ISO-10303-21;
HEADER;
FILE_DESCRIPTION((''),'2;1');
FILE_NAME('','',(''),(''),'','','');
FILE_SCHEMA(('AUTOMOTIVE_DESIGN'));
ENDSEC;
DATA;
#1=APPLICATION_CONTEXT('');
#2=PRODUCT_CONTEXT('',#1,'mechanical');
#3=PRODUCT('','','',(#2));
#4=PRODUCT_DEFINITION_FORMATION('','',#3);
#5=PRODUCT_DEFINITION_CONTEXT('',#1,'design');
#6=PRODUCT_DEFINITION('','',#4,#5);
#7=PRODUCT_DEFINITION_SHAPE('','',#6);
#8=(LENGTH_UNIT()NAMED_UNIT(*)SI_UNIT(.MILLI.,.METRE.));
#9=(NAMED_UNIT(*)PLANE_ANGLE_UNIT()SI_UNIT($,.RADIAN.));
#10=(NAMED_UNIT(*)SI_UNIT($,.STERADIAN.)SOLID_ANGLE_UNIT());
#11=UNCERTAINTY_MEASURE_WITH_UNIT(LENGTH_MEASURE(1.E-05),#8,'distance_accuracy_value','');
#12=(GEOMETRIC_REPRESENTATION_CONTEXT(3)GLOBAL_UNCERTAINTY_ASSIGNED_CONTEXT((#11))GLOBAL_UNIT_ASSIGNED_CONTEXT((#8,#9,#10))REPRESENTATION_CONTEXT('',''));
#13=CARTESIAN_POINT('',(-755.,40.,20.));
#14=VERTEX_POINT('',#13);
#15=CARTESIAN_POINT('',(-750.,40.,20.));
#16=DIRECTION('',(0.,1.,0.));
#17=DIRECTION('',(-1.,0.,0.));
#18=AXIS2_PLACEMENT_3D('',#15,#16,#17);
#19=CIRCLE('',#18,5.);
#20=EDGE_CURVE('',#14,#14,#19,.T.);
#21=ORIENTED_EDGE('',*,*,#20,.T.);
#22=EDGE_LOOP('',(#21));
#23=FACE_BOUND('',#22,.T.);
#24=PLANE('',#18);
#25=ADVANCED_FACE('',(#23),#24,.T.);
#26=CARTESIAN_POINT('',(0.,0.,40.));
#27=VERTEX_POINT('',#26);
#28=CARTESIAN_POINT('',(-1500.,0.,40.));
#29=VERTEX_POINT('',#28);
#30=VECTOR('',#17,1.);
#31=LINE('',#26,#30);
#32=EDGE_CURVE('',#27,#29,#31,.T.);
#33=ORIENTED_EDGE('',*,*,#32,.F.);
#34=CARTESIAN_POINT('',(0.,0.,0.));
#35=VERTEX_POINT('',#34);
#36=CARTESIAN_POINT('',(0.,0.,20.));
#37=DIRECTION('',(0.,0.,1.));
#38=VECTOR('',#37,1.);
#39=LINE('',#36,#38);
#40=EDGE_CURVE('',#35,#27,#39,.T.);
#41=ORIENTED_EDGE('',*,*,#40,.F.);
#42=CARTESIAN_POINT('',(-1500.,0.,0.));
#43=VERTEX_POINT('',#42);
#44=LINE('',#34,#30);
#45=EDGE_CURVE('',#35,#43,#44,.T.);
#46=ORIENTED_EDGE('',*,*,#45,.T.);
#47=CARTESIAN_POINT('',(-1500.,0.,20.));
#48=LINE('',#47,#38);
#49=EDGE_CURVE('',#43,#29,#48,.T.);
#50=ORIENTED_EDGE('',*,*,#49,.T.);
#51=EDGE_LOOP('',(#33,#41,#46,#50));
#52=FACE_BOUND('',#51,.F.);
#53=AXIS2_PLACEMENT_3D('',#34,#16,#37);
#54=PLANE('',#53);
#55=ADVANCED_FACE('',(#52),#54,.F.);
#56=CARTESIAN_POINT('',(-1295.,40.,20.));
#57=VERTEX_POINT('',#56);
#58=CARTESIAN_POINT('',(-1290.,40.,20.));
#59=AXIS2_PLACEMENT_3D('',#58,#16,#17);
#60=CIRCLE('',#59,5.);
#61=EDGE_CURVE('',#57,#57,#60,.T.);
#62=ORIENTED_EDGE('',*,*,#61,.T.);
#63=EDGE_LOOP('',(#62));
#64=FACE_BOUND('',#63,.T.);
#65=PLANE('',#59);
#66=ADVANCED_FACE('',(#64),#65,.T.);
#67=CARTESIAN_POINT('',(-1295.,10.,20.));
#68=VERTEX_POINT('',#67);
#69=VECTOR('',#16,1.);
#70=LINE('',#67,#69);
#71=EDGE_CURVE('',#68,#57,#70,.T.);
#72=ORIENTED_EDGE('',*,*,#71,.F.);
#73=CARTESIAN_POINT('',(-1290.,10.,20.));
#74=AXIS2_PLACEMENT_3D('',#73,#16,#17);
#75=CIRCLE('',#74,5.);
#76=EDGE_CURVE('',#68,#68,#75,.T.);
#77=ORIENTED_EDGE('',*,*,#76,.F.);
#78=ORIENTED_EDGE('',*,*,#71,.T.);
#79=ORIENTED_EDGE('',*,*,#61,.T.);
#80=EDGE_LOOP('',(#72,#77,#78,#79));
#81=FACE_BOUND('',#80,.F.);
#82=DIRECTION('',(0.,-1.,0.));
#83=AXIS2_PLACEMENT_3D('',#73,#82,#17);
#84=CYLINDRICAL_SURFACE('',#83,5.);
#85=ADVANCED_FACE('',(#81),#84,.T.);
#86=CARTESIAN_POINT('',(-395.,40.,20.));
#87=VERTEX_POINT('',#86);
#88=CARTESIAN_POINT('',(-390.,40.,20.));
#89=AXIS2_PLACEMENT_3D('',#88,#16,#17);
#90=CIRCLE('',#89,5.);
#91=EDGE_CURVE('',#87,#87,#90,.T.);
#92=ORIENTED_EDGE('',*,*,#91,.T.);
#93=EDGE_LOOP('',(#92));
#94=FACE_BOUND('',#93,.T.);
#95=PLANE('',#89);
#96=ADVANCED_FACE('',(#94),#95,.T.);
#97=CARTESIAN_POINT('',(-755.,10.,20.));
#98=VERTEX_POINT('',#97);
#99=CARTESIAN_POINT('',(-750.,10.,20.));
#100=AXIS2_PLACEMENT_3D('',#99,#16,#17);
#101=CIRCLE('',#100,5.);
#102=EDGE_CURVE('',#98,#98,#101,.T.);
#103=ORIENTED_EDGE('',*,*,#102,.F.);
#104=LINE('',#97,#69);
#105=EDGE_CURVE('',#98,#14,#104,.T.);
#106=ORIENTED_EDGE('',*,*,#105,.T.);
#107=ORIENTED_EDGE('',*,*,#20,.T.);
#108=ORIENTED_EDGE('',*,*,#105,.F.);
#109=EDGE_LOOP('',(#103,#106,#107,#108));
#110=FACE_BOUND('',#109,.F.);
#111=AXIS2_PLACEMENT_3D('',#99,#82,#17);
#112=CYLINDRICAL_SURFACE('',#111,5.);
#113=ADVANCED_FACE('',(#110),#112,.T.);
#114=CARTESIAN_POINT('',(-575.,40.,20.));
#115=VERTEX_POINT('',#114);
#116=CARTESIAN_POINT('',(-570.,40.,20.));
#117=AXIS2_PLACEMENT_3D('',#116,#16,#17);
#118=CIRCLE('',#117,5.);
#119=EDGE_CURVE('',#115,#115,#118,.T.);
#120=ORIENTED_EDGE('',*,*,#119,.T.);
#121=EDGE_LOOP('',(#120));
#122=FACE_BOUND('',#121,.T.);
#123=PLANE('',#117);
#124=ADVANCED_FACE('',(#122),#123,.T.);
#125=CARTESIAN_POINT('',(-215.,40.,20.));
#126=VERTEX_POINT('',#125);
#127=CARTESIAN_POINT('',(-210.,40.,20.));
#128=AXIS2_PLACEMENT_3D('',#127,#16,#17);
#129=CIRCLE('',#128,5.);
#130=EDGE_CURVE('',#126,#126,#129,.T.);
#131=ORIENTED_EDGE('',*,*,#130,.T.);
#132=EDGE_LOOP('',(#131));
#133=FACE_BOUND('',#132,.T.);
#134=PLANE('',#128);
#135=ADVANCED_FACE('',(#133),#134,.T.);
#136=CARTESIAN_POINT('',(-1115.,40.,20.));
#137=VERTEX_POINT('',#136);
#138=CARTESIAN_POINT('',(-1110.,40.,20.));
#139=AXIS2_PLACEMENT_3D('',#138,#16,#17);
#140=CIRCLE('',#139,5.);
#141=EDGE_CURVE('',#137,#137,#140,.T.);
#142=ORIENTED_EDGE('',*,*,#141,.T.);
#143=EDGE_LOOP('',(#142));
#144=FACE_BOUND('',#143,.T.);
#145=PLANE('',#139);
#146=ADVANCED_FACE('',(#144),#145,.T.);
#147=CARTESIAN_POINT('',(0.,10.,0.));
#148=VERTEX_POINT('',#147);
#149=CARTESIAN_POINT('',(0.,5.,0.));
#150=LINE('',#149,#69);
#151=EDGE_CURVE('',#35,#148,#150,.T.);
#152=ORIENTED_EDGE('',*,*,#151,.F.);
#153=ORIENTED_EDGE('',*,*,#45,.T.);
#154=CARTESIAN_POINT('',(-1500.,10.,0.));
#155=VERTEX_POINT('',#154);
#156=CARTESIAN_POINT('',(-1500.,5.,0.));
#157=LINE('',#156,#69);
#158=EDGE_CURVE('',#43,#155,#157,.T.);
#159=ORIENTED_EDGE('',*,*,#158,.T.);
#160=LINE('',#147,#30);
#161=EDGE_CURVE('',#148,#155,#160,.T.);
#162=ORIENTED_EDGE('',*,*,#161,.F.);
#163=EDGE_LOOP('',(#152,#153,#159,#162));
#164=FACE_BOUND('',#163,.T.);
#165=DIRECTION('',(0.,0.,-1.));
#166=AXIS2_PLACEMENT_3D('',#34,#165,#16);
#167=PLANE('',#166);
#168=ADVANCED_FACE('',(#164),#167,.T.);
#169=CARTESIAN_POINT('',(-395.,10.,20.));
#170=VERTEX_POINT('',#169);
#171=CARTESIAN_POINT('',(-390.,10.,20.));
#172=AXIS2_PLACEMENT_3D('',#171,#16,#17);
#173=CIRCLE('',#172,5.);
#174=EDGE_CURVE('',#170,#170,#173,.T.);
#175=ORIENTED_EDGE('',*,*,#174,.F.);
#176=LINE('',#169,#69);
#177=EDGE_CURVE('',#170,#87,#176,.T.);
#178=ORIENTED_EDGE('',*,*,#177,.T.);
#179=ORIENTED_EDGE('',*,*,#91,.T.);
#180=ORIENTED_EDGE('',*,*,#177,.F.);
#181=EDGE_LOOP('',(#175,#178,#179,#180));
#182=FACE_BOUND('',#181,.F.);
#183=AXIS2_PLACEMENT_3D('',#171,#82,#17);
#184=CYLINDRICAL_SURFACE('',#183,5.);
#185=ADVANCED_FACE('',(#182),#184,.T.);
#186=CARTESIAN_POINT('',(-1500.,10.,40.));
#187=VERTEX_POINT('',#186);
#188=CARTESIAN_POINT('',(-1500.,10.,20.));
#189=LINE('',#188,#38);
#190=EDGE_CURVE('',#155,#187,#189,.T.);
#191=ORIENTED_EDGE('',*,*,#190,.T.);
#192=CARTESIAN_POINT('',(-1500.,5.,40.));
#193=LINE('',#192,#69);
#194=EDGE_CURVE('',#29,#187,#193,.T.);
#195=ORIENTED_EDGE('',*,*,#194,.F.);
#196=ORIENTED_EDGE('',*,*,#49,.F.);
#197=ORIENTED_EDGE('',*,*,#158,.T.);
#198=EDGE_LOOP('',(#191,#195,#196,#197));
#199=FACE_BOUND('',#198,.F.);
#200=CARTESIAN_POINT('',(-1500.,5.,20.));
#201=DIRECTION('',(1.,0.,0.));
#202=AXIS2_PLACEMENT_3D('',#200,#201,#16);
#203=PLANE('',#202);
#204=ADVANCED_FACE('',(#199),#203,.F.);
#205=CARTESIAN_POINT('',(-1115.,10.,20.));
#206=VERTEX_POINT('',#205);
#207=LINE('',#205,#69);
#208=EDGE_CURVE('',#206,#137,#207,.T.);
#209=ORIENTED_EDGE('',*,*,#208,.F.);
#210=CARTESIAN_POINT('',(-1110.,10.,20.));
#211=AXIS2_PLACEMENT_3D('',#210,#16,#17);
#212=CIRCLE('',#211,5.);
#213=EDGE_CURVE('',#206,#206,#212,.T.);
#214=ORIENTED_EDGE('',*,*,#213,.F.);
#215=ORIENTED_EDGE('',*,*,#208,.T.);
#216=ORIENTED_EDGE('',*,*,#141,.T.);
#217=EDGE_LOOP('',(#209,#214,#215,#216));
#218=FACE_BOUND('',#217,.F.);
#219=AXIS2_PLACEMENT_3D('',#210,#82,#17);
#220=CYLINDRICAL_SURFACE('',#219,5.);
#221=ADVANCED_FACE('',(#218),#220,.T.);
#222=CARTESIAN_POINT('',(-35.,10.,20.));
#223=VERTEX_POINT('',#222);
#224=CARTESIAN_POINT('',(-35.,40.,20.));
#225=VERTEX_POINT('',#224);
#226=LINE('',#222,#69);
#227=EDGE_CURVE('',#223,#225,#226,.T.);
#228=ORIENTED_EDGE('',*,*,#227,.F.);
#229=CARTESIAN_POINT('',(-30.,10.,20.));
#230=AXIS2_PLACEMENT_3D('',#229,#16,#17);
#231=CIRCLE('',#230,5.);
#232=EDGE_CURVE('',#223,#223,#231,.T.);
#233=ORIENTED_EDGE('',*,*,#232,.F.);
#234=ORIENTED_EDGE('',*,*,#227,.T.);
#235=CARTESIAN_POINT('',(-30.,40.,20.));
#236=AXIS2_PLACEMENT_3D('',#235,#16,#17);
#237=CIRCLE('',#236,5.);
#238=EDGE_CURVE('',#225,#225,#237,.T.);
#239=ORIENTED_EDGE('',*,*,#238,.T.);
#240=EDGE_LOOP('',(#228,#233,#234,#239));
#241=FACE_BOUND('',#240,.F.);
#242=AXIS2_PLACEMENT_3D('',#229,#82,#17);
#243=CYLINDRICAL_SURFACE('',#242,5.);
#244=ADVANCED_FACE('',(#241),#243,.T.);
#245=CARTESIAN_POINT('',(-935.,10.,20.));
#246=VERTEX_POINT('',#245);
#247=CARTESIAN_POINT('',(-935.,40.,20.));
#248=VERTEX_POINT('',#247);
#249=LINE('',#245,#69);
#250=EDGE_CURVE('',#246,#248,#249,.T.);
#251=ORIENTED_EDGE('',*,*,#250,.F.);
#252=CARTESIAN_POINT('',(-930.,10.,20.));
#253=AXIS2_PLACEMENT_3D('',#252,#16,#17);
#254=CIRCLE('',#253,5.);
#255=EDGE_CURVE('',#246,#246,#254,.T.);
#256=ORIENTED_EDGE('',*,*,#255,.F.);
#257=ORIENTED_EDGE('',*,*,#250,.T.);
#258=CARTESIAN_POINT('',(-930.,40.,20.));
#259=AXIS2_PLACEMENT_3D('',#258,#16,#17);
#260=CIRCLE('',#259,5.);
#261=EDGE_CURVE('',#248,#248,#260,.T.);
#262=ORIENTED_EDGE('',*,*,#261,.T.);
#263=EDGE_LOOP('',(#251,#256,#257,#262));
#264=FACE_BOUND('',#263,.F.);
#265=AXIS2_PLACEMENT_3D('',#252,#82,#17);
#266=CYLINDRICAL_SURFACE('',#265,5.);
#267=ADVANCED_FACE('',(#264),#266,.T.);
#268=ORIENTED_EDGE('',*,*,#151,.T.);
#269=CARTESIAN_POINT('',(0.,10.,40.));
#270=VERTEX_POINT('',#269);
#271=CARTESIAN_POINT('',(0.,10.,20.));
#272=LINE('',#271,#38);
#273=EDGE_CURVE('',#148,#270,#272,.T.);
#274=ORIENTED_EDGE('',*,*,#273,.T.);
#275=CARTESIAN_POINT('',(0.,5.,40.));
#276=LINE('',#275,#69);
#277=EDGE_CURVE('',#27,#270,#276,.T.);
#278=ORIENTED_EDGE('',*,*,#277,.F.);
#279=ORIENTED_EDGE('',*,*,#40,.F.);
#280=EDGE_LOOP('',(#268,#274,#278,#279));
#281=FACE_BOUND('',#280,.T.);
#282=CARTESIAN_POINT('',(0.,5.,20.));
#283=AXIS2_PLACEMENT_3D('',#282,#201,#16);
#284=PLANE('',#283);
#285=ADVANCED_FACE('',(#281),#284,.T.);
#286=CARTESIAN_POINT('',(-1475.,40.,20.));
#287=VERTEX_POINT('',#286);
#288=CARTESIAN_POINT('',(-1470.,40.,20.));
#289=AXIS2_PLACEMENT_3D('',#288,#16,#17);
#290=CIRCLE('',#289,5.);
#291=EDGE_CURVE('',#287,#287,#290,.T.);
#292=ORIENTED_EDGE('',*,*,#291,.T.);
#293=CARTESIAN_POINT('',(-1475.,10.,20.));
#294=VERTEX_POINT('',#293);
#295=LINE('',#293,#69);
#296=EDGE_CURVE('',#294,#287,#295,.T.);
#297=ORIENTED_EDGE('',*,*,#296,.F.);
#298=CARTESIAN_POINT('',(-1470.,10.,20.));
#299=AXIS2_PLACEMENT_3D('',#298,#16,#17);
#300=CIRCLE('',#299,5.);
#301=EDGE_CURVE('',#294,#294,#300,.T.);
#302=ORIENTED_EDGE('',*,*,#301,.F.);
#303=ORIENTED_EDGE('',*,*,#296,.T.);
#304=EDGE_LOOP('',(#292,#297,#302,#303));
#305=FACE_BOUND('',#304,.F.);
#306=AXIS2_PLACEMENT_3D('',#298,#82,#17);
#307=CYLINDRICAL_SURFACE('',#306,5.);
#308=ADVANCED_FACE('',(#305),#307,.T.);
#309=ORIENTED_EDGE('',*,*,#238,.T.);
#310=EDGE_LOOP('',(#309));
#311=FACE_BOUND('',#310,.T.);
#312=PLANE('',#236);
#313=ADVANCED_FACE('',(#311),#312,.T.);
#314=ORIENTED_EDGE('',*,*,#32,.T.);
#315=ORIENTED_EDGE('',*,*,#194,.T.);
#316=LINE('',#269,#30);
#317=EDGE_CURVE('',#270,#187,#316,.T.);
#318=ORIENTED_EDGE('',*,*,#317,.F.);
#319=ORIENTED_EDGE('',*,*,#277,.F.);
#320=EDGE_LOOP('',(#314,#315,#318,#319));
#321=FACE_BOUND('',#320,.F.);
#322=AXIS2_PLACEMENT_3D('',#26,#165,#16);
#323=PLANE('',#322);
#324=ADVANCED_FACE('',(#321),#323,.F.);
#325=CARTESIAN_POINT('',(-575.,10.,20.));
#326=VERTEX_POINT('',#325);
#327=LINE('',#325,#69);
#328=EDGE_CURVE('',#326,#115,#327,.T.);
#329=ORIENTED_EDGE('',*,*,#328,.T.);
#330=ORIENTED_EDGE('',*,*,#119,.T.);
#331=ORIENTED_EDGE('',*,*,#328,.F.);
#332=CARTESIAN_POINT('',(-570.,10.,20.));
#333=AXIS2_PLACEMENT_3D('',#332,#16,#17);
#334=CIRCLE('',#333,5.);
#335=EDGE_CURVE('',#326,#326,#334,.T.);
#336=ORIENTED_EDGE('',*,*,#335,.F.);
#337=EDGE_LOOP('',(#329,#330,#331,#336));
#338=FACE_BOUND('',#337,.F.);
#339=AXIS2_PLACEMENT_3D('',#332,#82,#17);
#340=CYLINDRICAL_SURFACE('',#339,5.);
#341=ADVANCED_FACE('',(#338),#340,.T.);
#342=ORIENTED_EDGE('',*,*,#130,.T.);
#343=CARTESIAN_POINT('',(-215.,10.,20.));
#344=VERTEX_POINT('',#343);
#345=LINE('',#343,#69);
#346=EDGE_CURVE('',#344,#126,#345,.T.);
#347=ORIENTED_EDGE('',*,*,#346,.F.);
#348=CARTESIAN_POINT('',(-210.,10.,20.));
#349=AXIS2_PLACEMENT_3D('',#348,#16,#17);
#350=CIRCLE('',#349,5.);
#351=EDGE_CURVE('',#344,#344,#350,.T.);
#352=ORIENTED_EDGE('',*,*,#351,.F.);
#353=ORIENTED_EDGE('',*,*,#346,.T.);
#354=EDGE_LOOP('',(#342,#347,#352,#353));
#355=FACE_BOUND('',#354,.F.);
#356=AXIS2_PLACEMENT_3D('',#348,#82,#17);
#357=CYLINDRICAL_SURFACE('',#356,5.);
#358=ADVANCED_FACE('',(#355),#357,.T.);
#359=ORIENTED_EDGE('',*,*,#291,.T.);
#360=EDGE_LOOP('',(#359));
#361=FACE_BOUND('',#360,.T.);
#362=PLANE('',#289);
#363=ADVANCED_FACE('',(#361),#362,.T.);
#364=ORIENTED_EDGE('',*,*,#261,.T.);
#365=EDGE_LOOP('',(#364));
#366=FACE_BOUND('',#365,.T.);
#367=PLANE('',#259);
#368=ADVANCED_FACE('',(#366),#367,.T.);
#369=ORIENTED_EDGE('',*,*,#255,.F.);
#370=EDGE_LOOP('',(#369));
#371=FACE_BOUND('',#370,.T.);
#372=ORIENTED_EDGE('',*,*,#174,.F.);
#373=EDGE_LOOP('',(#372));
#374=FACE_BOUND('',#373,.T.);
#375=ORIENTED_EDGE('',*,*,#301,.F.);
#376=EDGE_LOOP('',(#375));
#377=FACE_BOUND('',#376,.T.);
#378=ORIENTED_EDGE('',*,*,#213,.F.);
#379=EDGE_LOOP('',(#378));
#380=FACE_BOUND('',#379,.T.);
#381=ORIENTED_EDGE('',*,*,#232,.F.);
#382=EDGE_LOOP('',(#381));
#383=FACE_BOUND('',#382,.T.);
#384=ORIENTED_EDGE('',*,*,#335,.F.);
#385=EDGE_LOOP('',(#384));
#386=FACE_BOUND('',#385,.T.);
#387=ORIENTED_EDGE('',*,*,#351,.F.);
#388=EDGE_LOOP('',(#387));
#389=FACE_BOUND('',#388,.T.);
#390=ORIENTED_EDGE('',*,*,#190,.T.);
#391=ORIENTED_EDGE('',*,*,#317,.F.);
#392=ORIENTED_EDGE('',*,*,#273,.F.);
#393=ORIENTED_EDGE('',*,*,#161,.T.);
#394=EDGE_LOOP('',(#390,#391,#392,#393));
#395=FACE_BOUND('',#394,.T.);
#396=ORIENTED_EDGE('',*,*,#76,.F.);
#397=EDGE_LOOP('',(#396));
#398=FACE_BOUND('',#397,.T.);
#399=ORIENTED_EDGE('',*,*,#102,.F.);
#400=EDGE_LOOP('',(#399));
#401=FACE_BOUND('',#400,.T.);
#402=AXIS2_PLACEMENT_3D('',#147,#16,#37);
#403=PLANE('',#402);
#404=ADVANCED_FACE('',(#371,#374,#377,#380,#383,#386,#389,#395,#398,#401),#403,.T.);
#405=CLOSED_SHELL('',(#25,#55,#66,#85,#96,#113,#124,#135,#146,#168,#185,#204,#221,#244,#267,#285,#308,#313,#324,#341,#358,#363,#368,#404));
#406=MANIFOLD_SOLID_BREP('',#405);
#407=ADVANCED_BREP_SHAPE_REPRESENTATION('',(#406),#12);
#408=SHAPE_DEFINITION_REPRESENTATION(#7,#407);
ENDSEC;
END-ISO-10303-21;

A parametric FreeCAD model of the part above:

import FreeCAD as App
import Part
import Sketcher
from FreeCAD import Vector

doc = App.newDocument("Part")
body = doc.addObject("PartDesign::Body", "Body")

# Sketch on YZ plane
sketch1 = body.newObject("Sketcher::SketchObject", "Sketch")
sketch1.AttachmentSupport = (doc.getObject("YZ_Plane"), [""])
sketch1.MapMode = "FlatFace"
sketch1.addGeometry([
    Part.LineSegment(Vector(0, 40, 0), Vector(0, 0, 0)),
    Part.LineSegment(Vector(0, 0, 0), Vector(10, 0, 0)),
    Part.LineSegment(Vector(10, 0, 0), Vector(10, 40, 0)),
    Part.LineSegment(Vector(10, 40, 0), Vector(0, 40, 0)),
], False)
sketch1.addConstraint([
    Sketcher.Constraint("Coincident", 0, 2, 1, 1),
    Sketcher.Constraint("Coincident", 1, 2, 2, 1),
    Sketcher.Constraint("Coincident", 2, 2, 3, 1),
    Sketcher.Constraint("Coincident", 3, 2, 0, 1),
    Sketcher.Constraint("Vertical", 0),
    Sketcher.Constraint("Horizontal", 1),
    Sketcher.Constraint("Vertical", 2),
    Sketcher.Constraint("Horizontal", 3),
    Sketcher.Constraint("Coincident", 0, 2, -1, 1),
    Sketcher.Constraint("DistanceX", 1, 1, 1, 2, 10.0),
    Sketcher.Constraint("DistanceY", 0, 2, 0, 1, 40.0),
])
pad1 = body.newObject("PartDesign::Pad", "Pad")
pad1.Profile = sketch1
pad1.Length = 1500
pad1.Reversed = True

# Sketch on XZ plane
sketch2 = body.newObject("Sketcher::SketchObject", "Sketch001")
sketch2.AttachmentSupport = (doc.getObject("XZ_Plane"), [""])
sketch2.MapMode = "FlatFace"
sketch2.AttachmentOffset = App.Placement(Vector(0, 0, -10), App.Rotation())
sketch2.addGeometry([
    Part.Circle(Vector(-30, 20, 0), Vector(0, 0, 1), 5),  # 0
    Part.Circle(Vector(-210, 20, 0), Vector(0, 0, 1), 5),  # 1
    Part.Circle(Vector(-390, 20, 0), Vector(0, 0, 1), 5),  # 2
    Part.Circle(Vector(-570, 20, 0), Vector(0, 0, 1), 5),  # 3
    Part.Circle(Vector(-750, 20, 0), Vector(0, 0, 1), 5),  # 4
    Part.Circle(Vector(-930, 20, 0), Vector(0, 0, 1), 5),  # 5
    Part.Circle(Vector(-1110, 20, 0), Vector(0, 0, 1), 5),  # 6
    Part.Circle(Vector(-1290, 20, 0), Vector(0, 0, 1), 5),  # 7
    Part.Circle(Vector(-1470, 20, 0), Vector(0, 0, 1), 5),  # 8
], False)
sketch2.addConstraint([
    Sketcher.Constraint("Equal", 0, 1),
    Sketcher.Constraint("Equal", 1, 2),
    Sketcher.Constraint("Equal", 2, 3),
    Sketcher.Constraint("Equal", 3, 4),
    Sketcher.Constraint("Equal", 4, 5),
    Sketcher.Constraint("Equal", 5, 6),
    Sketcher.Constraint("Equal", 6, 7),
    Sketcher.Constraint("Equal", 7, 8),
    Sketcher.Constraint("Horizontal", 0, 3, 1, 3),
    Sketcher.Constraint("Horizontal", 1, 3, 2, 3),
    Sketcher.Constraint("Horizontal", 2, 3, 3, 3),
    Sketcher.Constraint("Horizontal", 3, 3, 4, 3),
    Sketcher.Constraint("Horizontal", 4, 3, 5, 3),
    Sketcher.Constraint("Horizontal", 5, 3, 6, 3),
    Sketcher.Constraint("Horizontal", 6, 3, 7, 3),
    Sketcher.Constraint("Horizontal", 7, 3, 8, 3),
    Sketcher.Constraint("Diameter", 0, 10.0),
    Sketcher.Constraint("DistanceX", 0, 3, -1, 1, 30.0),
    Sketcher.Constraint("DistanceY", -1, 1, 0, 3, 20.0),
    Sketcher.Constraint("DistanceX", 1, 3, -1, 1, 210.0),
    Sketcher.Constraint("DistanceX", 2, 3, -1, 1, 390.0),
    Sketcher.Constraint("DistanceX", 3, 3, -1, 1, 570.0),
    Sketcher.Constraint("DistanceX", 4, 3, -1, 1, 750.0),
    Sketcher.Constraint("DistanceX", 5, 3, -1, 1, 930.0),
    Sketcher.Constraint("DistanceX", 6, 3, -1, 1, 1110.0),
    Sketcher.Constraint("DistanceX", 7, 3, -1, 1, 1290.0),
    Sketcher.Constraint("DistanceX", 8, 3, -1, 1, 1470.0),
])
pad2 = body.newObject("PartDesign::Pad", "Pad001")
pad2.Profile = sketch2
pad2.Length = 30
pad2.Reversed = True

doc.recompute()
